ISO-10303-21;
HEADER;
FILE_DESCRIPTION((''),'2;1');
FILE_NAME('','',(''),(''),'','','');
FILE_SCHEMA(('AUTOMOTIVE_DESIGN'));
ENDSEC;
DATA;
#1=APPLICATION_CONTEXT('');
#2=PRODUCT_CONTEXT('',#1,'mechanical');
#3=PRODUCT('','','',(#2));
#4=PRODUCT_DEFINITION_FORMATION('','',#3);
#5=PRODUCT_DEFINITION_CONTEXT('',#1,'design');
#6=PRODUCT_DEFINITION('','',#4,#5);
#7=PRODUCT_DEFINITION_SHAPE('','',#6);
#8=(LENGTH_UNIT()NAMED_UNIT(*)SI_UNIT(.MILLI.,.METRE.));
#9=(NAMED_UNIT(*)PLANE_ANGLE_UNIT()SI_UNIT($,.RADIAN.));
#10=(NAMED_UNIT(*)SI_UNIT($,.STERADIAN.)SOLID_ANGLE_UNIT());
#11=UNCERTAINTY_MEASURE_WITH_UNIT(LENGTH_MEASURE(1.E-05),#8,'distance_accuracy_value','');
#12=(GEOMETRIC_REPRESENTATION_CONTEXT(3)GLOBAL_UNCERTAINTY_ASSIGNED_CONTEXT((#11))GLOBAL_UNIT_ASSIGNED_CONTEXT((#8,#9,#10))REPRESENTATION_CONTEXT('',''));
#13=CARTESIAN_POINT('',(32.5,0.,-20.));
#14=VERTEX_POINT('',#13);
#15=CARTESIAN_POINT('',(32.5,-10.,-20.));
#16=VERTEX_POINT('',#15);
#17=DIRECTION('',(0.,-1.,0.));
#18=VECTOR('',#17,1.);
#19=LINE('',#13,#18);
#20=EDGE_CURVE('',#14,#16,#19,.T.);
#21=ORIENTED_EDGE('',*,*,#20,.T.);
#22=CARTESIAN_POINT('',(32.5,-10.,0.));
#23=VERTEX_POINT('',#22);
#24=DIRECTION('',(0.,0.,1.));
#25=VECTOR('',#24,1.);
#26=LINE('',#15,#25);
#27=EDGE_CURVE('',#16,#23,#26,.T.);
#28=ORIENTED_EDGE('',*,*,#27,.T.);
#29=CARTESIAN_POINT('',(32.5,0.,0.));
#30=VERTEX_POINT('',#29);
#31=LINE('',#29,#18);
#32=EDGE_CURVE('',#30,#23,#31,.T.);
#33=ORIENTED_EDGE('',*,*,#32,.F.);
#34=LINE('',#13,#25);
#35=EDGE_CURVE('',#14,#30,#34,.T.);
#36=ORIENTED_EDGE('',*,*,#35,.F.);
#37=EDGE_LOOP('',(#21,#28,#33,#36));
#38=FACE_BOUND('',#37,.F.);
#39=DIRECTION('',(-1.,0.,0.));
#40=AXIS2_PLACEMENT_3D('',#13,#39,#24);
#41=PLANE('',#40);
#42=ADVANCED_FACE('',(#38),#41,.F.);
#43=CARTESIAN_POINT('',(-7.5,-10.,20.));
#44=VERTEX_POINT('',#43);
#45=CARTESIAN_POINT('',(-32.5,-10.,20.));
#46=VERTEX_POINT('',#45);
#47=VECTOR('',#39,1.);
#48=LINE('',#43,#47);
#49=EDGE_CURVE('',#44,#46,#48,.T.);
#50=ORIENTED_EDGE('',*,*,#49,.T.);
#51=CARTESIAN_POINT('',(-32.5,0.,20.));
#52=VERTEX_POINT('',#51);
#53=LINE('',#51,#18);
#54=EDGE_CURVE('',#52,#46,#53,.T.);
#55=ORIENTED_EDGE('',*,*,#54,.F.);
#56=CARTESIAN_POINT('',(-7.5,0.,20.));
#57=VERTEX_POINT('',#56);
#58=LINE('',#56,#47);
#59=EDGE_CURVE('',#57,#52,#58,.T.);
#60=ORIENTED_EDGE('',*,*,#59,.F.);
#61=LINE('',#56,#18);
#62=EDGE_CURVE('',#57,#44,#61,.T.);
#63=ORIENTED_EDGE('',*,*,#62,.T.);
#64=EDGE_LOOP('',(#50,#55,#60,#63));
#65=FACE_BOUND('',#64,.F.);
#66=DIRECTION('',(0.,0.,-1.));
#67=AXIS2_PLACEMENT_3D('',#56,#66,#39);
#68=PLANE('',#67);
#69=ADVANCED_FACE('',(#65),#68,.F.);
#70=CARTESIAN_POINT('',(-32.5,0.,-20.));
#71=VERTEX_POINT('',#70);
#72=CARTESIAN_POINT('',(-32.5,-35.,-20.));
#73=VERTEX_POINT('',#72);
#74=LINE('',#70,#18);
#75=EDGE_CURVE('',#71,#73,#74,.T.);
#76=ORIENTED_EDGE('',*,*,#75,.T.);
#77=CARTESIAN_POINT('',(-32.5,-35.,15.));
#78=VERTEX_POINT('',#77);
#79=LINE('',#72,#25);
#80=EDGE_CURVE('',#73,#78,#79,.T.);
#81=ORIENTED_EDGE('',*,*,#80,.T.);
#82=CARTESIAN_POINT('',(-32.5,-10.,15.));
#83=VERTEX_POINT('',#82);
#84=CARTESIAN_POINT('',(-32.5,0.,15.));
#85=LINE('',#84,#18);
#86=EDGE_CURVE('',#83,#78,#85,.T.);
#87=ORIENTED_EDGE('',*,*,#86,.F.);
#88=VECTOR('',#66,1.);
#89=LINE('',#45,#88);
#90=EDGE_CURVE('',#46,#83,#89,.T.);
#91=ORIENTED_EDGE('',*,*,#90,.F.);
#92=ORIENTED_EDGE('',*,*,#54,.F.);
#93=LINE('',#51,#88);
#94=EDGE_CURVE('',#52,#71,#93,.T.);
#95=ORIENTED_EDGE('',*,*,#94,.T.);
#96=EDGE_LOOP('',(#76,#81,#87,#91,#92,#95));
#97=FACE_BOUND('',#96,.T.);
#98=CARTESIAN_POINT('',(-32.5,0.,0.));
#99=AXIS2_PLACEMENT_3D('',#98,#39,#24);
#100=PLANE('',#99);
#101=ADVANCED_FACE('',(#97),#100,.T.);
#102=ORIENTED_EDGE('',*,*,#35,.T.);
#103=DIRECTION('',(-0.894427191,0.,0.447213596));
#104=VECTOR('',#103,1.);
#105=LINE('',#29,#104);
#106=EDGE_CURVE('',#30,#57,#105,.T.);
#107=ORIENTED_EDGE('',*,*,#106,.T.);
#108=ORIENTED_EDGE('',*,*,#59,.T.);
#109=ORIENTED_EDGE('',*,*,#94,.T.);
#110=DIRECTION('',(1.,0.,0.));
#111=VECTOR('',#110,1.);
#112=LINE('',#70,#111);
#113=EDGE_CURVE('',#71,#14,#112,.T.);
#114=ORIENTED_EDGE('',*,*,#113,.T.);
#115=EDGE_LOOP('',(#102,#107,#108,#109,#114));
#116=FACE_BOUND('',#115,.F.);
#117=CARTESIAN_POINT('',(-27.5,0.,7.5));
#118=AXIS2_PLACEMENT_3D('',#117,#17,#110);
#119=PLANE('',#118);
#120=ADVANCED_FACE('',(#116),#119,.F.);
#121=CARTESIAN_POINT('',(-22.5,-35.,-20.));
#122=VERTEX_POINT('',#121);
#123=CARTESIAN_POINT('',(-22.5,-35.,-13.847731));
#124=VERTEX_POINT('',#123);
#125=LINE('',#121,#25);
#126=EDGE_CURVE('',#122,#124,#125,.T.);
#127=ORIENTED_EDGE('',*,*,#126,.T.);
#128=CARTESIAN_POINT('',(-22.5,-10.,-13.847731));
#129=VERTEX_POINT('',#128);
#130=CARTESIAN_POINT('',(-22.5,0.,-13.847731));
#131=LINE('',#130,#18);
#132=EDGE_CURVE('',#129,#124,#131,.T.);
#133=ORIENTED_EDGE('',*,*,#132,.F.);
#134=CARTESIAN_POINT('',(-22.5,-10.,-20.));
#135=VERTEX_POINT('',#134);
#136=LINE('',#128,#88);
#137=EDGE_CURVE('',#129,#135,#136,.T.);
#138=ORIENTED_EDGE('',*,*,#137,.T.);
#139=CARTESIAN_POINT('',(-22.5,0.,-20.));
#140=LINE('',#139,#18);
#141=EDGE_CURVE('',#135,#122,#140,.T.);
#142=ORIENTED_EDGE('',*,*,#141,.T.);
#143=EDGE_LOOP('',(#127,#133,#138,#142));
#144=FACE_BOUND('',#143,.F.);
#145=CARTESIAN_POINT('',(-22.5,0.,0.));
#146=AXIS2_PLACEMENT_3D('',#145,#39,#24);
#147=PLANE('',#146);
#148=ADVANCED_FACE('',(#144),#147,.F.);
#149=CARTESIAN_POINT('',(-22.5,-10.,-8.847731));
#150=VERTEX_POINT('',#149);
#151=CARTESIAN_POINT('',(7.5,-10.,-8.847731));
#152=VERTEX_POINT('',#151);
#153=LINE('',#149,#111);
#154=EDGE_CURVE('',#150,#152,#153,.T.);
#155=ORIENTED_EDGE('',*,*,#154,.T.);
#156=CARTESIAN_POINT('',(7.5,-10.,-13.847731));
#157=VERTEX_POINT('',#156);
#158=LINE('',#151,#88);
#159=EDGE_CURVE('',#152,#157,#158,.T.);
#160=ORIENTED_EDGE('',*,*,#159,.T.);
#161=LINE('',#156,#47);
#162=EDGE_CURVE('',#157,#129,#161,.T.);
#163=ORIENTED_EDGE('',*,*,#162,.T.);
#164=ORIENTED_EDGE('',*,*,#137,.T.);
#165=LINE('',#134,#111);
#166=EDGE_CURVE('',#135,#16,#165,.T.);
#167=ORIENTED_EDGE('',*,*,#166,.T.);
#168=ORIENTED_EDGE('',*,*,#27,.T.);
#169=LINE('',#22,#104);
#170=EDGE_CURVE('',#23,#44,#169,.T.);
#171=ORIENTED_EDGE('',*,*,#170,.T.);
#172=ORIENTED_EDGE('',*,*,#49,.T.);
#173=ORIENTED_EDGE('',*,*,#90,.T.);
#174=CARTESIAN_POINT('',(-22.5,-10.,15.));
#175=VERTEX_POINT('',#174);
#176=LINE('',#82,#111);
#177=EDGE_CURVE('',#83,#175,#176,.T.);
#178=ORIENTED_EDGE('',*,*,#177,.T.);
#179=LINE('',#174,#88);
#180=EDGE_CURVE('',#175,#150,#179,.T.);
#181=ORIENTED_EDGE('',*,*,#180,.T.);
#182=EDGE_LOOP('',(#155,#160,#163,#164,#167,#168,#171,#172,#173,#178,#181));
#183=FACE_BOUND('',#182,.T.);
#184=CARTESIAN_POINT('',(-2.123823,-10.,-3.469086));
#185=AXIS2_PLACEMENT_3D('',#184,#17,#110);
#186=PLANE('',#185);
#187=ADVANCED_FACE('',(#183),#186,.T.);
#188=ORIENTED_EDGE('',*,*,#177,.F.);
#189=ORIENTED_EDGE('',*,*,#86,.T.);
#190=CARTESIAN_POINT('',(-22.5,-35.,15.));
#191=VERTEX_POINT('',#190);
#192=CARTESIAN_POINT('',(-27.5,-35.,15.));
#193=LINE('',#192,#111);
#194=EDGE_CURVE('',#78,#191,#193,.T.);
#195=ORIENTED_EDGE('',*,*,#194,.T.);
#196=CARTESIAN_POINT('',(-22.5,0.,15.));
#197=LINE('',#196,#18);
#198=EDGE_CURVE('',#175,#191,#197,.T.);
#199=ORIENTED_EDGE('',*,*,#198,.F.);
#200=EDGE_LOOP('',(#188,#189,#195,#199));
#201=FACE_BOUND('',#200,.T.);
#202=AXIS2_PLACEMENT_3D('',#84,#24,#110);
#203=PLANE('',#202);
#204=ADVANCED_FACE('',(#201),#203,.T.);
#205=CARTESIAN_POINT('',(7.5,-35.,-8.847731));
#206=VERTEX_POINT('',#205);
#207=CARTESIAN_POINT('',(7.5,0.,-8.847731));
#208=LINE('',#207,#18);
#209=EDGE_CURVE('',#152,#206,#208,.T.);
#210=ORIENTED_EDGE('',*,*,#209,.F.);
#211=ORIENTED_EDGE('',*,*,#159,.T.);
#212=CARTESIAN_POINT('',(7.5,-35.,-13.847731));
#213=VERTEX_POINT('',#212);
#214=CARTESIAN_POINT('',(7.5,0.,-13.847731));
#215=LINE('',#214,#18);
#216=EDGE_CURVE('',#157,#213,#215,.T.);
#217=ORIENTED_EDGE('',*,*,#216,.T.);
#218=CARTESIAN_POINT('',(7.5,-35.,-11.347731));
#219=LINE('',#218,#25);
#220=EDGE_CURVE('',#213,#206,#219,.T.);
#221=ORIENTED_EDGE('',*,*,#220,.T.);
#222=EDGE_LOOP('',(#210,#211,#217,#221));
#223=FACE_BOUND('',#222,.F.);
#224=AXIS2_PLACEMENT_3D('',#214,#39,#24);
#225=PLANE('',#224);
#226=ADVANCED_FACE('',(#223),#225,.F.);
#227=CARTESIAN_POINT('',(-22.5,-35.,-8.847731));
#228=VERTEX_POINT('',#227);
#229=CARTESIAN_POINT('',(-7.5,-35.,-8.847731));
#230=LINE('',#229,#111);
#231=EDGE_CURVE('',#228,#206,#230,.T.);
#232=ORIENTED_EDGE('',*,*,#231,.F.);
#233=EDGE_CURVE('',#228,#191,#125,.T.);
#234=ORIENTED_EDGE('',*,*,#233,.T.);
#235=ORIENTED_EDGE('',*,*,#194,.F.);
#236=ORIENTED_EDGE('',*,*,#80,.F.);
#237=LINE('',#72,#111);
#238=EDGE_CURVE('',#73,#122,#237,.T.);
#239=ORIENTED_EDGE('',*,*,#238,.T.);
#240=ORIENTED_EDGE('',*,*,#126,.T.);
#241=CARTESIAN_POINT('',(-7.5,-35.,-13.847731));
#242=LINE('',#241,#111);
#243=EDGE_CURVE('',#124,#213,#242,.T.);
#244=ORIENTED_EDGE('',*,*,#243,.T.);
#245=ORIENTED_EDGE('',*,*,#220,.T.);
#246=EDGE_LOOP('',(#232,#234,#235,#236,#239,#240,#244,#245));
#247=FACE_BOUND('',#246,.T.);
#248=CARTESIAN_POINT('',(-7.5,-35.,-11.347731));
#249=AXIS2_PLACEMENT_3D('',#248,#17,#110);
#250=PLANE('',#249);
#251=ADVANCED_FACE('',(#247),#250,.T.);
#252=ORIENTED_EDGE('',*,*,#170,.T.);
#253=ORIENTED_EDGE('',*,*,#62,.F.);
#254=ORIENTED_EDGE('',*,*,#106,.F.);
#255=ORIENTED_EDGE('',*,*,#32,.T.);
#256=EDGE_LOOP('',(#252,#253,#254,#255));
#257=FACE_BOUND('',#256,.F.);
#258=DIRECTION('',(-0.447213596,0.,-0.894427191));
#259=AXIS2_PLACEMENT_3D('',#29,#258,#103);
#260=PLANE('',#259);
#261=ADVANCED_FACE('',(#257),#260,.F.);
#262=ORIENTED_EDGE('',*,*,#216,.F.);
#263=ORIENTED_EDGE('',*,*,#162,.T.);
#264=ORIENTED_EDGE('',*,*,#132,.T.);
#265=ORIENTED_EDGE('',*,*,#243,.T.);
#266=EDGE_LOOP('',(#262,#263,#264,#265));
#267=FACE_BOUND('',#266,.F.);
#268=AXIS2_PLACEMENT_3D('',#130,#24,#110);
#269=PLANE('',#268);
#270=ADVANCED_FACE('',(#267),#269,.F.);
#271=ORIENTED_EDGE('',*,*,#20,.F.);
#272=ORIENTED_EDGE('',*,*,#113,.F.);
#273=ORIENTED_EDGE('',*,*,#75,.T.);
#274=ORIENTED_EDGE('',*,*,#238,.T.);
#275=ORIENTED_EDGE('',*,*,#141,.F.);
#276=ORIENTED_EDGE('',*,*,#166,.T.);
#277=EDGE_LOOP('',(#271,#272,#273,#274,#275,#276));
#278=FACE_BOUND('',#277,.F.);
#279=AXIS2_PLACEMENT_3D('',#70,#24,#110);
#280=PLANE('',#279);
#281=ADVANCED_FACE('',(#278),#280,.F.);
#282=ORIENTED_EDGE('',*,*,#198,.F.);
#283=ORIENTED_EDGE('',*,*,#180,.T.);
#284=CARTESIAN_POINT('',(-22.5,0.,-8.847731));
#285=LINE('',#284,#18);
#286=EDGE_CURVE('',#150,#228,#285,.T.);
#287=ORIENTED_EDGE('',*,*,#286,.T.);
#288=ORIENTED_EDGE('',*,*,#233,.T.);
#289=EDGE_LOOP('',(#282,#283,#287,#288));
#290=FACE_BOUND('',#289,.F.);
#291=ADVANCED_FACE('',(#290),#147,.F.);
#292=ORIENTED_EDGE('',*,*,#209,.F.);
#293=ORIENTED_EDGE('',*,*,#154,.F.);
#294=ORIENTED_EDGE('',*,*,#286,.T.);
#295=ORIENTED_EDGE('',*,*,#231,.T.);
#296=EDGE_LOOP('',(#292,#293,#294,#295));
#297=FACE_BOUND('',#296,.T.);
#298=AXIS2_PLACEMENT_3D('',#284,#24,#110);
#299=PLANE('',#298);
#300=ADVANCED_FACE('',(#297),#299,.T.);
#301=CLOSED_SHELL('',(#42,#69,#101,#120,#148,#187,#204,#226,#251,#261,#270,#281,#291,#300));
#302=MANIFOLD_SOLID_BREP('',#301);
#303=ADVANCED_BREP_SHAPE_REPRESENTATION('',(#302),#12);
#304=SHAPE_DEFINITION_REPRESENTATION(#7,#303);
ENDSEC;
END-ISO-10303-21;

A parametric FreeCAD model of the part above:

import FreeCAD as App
import Part
import Sketcher

V = App.Vector

doc = App.newDocument("Part")
body = doc.addObject("PartDesign::Body", "Body")

# Sketch on XZ plane
sketch1 = doc.addObject("Sketcher::SketchObject", "Sketch")
body.addObject(sketch1)
sketch1.AttachmentSupport = (doc.XZ_Plane, [""])
sketch1.MapMode = "FlatFace"
sketch1.addGeometry([
    Part.LineSegment(V(-22, -20, 0), V(32, -20, 0)),  # 0
    Part.LineSegment(V(32, -20, 0), V(32, 0, 0)),  # 1
    Part.LineSegment(V(32, 0, 0), V(-8, 20, 0)),  # 2
    Part.LineSegment(V(-8, 20, 0), V(-32, 20, 0)),  # 3
    Part.LineSegment(V(-32, 20, 0), V(-32, 15, 0)),  # 4
    Part.LineSegment(V(-32, 15, 0), V(-22, 15, 0)),  # 5
    Part.LineSegment(V(-22, 15, 0), V(-22, -9, 0)),  # 6
    Part.LineSegment(V(-22, -9, 0), V(8, -9, 0)),  # 7
    Part.LineSegment(V(8, -9, 0), V(8, -14, 0)),  # 8
    Part.LineSegment(V(8, -14, 0), V(-22, -14, 0)),  # 9
    Part.LineSegment(V(-22, -14, 0), V(-22, -20, 0)),  # 10
], False)
sketch1.addConstraint([
    Sketcher.Constraint("Coincident", 0, 2, 1, 1),
    Sketcher.Constraint("Coincident", 1, 2, 2, 1),
    Sketcher.Constraint("Coincident", 2, 2, 3, 1),
    Sketcher.Constraint("Coincident", 3, 2, 4, 1),
    Sketcher.Constraint("Coincident", 4, 2, 5, 1),
    Sketcher.Constraint("Coincident", 5, 2, 6, 1),
    Sketcher.Constraint("Coincident", 6, 2, 7, 1),
    Sketcher.Constraint("Coincident", 7, 2, 8, 1),
    Sketcher.Constraint("Coincident", 8, 2, 9, 1),
    Sketcher.Constraint("Coincident", 9, 2, 10, 1),
    Sketcher.Constraint("Coincident", 10, 2, 0, 1),
    Sketcher.Constraint("Horizontal", 0),
    Sketcher.Constraint("Vertical", 1),
    Sketcher.Constraint("Horizontal", 3),
    Sketcher.Constraint("Vertical", 4),
    Sketcher.Constraint("Horizontal", 5),
    Sketcher.Constraint("Vertical", 6),
    Sketcher.Constraint("Horizontal", 7),
    Sketcher.Constraint("Vertical", 8),
    Sketcher.Constraint("Horizontal", 9),
    Sketcher.Constraint("Vertical", 10),
    Sketcher.Constraint("Symmetric", 0, 2, 3, 2, -1, 1),
    Sketcher.Constraint("PointOnObject", 1, 2, -1),
    Sketcher.Constraint("Vertical", 6, 2, 9, 2),
    Sketcher.Constraint("Equal", 4, 8),
    Sketcher.Constraint("DistanceX", 0, 1, 0, 2, 55.0),
    Sketcher.Constraint("DistanceX", 3, 2, 3, 1, 25.0),
    Sketcher.Constraint("DistanceX", 5, 1, 5, 2, 10.0),
    Sketcher.Constraint("DistanceX", 7, 1, 7, 2, 30.0),
    Sketcher.Constraint("DistanceY", 1, 1, 1, 2, 20.0),
    Sketcher.Constraint("DistanceY", 4, 2, 4, 1, 5.0),
    Sketcher.Constraint("DistanceY", 6, 2, 6, 1, 23.847731),
])
pad1 = doc.addObject("PartDesign::Pad", "Pad")
body.addObject(pad1)
pad1.Profile = sketch1
pad1.Length = 10

# Sketch on XZ plane
sketch2 = doc.addObject("Sketcher::SketchObject", "Sketch001")
body.addObject(sketch2)
sketch2.AttachmentSupport = (doc.XZ_Plane, [""])
sketch2.MapMode = "FlatFace"
sketch2.addGeometry([
    Part.LineSegment(V(-32, -20, 0), V(-22, -20, 0)),
    Part.LineSegment(V(-22, -20, 0), V(-22, 0, 0)),
    Part.LineSegment(V(-22, 0, 0), V(-32, 0, 0)),
    Part.LineSegment(V(-32, 0, 0), V(-32, -20, 0)),
], False)
sketch2.addConstraint([
    Sketcher.Constraint("Coincident", 0, 2, 1, 1),
    Sketcher.Constraint("Coincident", 1, 2, 2, 1),
    Sketcher.Constraint("Coincident", 2, 2, 3, 1),
    Sketcher.Constraint("Coincident", 3, 2, 0, 1),
    Sketcher.Constraint("Horizontal", 0),
    Sketcher.Constraint("Vertical", 1),
    Sketcher.Constraint("Horizontal", 2),
    Sketcher.Constraint("Vertical", 3),
    Sketcher.Constraint("PointOnObject", 1, 2, -1),
    Sketcher.Constraint("DistanceX", 0, 1, 0, 2, 10.0),
    Sketcher.Constraint("DistanceY", 1, 1, 1, 2, 20.0),
    Sketcher.Constraint("DistanceX", 0, 2, -1, 1, 22.5),
])
pad2 = doc.addObject("PartDesign::Pad", "Pad001")
body.addObject(pad2)
pad2.Profile = sketch2
pad2.Length = 35

# Sketch on XZ plane
sketch3 = doc.addObject("Sketcher::SketchObject", "Sketch002")
body.addObject(sketch3)
sketch3.AttachmentSupport = (doc.XZ_Plane, [""])
sketch3.MapMode = "FlatFace"
sketch3.addGeometry([
    Part.LineSegment(V(-32, 15, 0), V(-32, 0, 0)),
    Part.LineSegment(V(-32, 0, 0), V(-22, 0, 0)),
    Part.LineSegment(V(-22, 0, 0), V(-22, 15, 0)),
    Part.LineSegment(V(-22, 15, 0), V(-32, 15, 0)),
], False)
sketch3.addConstraint([
    Sketcher.Constraint("Coincident", 0, 2, 1, 1),
    Sketcher.Constraint("Coincident", 1, 2, 2, 1),
    Sketcher.Constraint("Coincident", 2, 2, 3, 1),
    Sketcher.Constraint("Coincident", 3, 2, 0, 1),
    Sketcher.Constraint("Vertical", 0),
    Sketcher.Constraint("Horizontal", 1),
    Sketcher.Constraint("Vertical", 2),
    Sketcher.Constraint("Horizontal", 3),
    Sketcher.Constraint("PointOnObject", 0, 2, -1),
    Sketcher.Constraint("DistanceX", 1, 1, 1, 2, 10.0),
    Sketcher.Constraint("DistanceY", 0, 2, 0, 1, 15.0),
    Sketcher.Constraint("DistanceX", 0, 2, -1, 1, 32.5),
])
pad3 = doc.addObject("PartDesign::Pad", "Pad002")
body.addObject(pad3)
pad3.Profile = sketch3
pad3.Length = 35

# Sketch on XZ plane
sketch4 = doc.addObject("Sketcher::SketchObject", "Sketch003")
body.addObject(sketch4)
sketch4.AttachmentSupport = (doc.XZ_Plane, [""])
sketch4.MapMode = "FlatFace"
sketch4.addGeometry([
    Part.LineSegment(V(-22, -9, 0), V(-22, -14, 0)),
    Part.LineSegment(V(-22, -14, 0), V(8, -14, 0)),
    Part.LineSegment(V(8, -14, 0), V(8, -9, 0)),
    Part.LineSegment(V(8, -9, 0), V(-22, -9, 0)),
], False)
sketch4.addConstraint([
    Sketcher.Constraint("Coincident", 0, 2, 1, 1),
    Sketcher.Constraint("Coincident", 1, 2, 2, 1),
    Sketcher.Constraint("Coincident", 2, 2, 3, 1),
    Sketcher.Constraint("Coincident", 3, 2, 0, 1),
    Sketcher.Constraint("Vertical", 0),
    Sketcher.Constraint("Horizontal", 1),
    Sketcher.Constraint("Vertical", 2),
    Sketcher.Constraint("Horizontal", 3),
    Sketcher.Constraint("DistanceX", 1, 1, 1, 2, 30.0),
    Sketcher.Constraint("DistanceY", 0, 2, 0, 1, 5.0),
    Sketcher.Constraint("DistanceX", 0, 2, -1, 1, 22.5),
    Sketcher.Constraint("DistanceY", 0, 2, -1, 1, 13.847731),
])
pad4 = doc.addObject("PartDesign::Pad", "Pad003")
body.addObject(pad4)
pad4.Profile = sketch4
pad4.Length = 35

doc.recompute()
